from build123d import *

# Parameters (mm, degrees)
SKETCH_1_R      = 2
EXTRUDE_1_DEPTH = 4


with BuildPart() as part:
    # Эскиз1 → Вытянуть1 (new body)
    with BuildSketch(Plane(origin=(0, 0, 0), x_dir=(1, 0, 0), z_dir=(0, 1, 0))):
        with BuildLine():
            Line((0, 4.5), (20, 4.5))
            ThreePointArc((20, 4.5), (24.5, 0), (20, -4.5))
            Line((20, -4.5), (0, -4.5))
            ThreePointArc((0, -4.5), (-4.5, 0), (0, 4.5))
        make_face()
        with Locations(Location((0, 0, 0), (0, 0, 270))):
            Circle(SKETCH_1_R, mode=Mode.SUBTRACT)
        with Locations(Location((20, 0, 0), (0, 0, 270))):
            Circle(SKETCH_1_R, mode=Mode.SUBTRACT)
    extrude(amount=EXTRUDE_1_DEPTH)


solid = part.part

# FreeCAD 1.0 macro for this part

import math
import FreeCAD as App
import Part
import Sketcher

doc = App.newDocument("Part")
body = doc.addObject("PartDesign::Body", "Body")

sketch1 = body.newObject("Sketcher::SketchObject", "Sketch")
sketch1.AttachmentSupport = (doc.getObject("XZ_Plane"), [""])
sketch1.MapMode = "FlatFace"
sketch1.addGeometry([
    Part.LineSegment(App.Vector(20, -4.5, 0), App.Vector(0, -4.5, 0)),
    Part.ArcOfCircle(Part.Circle(App.Vector(0, 0, 0), App.Vector(0, 0, 1), 4.5), math.radians(90), math.radians(270)),
    Part.LineSegment(App.Vector(0, 4.5, 0), App.Vector(20, 4.5, 0)),
    Part.ArcOfCircle(Part.Circle(App.Vector(20, 0, 0), App.Vector(0, 0, 1), 4.5), math.radians(-90), math.radians(90)),
    Part.Circle(App.Vector(20, 0, 0), App.Vector(0, 0, 1), 2),
    Part.Circle(App.Vector(0, 0, 0), App.Vector(0, 0, 1), 2),
], False)
sketch1.addConstraint([
    Sketcher.Constraint("Tangent", 0, 2, 1, 2),
    Sketcher.Constraint("Tangent", 1, 1, 2, 1),
    Sketcher.Constraint("Tangent", 2, 2, 3, 2),
    Sketcher.Constraint("Tangent", 3, 1, 0, 1),
    Sketcher.Constraint("Horizontal", 0),
    Sketcher.Constraint("Horizontal", 2),
    Sketcher.Constraint("Coincident", 1, 3, -1, 1),
    Sketcher.Constraint("Coincident", 5, 3, -1, 1),
    Sketcher.Constraint("Coincident", 4, 3, 3, 3),
    Sketcher.Constraint("Equal", 4, 5),
    Sketcher.Constraint("Diameter", 4, 4.0),
    Sketcher.Constraint("Radius", 1, 4.5),
    Sketcher.Constraint("DistanceX", 0, 2, 0, 1, 20.0),
])
pad1 = body.newObject("PartDesign::Pad", "Pad")
pad1.Profile = sketch1
pad1.Length = 4
pad1.Reversed = True

doc.recompute()
